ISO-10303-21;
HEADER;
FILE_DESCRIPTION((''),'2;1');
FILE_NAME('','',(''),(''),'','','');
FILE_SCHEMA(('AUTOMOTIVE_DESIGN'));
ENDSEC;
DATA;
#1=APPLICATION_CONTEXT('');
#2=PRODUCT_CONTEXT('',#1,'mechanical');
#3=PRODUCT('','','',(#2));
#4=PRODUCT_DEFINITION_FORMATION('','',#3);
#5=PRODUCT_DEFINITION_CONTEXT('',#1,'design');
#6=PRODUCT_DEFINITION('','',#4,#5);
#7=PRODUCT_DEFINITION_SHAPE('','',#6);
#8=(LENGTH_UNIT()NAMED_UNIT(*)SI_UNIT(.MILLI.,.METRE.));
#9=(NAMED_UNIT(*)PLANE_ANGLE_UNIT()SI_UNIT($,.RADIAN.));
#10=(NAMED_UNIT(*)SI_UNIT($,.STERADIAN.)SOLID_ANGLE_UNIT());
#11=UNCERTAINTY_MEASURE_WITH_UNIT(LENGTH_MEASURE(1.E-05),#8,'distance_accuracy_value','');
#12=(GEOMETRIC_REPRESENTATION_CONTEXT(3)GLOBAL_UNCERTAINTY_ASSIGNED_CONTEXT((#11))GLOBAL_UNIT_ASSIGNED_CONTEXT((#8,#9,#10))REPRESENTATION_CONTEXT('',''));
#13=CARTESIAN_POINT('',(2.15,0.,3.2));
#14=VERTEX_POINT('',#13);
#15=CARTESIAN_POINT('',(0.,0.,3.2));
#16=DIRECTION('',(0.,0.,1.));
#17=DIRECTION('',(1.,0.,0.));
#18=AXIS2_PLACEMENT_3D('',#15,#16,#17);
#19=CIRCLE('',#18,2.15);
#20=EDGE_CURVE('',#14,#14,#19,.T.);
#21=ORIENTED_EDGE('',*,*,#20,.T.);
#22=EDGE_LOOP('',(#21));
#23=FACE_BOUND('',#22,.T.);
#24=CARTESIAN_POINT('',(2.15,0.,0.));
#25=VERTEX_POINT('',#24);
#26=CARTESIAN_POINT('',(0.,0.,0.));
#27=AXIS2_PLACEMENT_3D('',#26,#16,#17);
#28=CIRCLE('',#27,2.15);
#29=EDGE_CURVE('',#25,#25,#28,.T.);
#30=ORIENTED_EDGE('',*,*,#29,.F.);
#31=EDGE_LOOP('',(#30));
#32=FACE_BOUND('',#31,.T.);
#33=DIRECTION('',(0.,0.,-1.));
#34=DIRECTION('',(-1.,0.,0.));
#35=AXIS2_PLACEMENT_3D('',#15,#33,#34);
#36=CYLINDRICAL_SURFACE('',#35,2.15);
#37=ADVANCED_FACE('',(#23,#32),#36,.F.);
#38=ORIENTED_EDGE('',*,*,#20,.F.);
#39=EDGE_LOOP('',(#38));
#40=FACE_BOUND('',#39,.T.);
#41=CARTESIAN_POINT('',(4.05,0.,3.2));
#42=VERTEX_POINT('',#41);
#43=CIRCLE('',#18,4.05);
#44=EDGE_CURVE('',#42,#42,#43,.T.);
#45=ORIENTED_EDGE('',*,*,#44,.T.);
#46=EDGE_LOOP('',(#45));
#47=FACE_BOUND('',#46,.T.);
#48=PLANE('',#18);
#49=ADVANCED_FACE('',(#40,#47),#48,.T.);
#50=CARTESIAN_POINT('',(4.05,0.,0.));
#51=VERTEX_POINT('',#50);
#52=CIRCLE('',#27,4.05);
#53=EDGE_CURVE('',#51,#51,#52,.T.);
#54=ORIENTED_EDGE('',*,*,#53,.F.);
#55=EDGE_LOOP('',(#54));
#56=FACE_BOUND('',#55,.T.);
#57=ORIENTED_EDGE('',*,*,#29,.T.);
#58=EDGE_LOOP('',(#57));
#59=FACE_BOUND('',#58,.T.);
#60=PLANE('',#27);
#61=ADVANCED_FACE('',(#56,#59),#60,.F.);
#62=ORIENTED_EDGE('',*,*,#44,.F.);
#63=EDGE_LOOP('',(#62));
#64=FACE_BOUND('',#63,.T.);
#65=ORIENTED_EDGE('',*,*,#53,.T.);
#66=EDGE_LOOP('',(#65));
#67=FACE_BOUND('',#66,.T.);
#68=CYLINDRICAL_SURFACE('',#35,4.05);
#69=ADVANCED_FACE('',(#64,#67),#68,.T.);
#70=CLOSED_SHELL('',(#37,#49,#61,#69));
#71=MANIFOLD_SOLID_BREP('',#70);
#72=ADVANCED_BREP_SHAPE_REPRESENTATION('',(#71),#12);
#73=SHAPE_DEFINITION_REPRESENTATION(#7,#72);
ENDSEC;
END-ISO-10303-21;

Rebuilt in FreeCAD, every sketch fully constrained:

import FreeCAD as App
import Part
import Sketcher
from FreeCAD import Vector
Q = App.Units.Quantity

doc = App.newDocument("Part")
body = doc.addObject("PartDesign::Body", "Body")

# Sketch on XY plane
sketch1 = body.newObject("Sketcher::SketchObject", "Sketch")
sketch1.AttachmentSupport = (doc.getObject("XY_Plane"), [""])
sketch1.MapMode = "FlatFace"
sketch1.addGeometry(Part.Circle(Vector(0, 0, 0), Vector(0, 0, 1), 4), False)
sketch1.addConstraint([
    Sketcher.Constraint("Coincident", 0, 3, -1, 1),
    Sketcher.Constraint("Diameter", 0, Q("8.1 mm")),
])
pad1 = body.newObject("PartDesign::Pad", "Pad")
pad1.Profile = sketch1
pad1.Length = 3.2

# Sketch on XY plane
sketch2 = body.newObject("Sketcher::SketchObject", "Sketch001")
sketch2.AttachmentSupport = (doc.getObject("XY_Plane"), [""])
sketch2.MapMode = "FlatFace"
sketch2.addGeometry(Part.Circle(Vector(0, 0, 0), Vector(0, 0, 1), 2.1), False)
sketch2.addConstraint([
    Sketcher.Constraint("Coincident", 0, 3, -1, 1),
    Sketcher.Constraint("Diameter", 0, Q("4.3 mm")),
])
pocket1 = body.newObject("PartDesign::Pocket", "Pocket")
pocket1.Profile = sketch2
pocket1.Length = 3.2
pocket1.Reversed = True

doc.recompute()
